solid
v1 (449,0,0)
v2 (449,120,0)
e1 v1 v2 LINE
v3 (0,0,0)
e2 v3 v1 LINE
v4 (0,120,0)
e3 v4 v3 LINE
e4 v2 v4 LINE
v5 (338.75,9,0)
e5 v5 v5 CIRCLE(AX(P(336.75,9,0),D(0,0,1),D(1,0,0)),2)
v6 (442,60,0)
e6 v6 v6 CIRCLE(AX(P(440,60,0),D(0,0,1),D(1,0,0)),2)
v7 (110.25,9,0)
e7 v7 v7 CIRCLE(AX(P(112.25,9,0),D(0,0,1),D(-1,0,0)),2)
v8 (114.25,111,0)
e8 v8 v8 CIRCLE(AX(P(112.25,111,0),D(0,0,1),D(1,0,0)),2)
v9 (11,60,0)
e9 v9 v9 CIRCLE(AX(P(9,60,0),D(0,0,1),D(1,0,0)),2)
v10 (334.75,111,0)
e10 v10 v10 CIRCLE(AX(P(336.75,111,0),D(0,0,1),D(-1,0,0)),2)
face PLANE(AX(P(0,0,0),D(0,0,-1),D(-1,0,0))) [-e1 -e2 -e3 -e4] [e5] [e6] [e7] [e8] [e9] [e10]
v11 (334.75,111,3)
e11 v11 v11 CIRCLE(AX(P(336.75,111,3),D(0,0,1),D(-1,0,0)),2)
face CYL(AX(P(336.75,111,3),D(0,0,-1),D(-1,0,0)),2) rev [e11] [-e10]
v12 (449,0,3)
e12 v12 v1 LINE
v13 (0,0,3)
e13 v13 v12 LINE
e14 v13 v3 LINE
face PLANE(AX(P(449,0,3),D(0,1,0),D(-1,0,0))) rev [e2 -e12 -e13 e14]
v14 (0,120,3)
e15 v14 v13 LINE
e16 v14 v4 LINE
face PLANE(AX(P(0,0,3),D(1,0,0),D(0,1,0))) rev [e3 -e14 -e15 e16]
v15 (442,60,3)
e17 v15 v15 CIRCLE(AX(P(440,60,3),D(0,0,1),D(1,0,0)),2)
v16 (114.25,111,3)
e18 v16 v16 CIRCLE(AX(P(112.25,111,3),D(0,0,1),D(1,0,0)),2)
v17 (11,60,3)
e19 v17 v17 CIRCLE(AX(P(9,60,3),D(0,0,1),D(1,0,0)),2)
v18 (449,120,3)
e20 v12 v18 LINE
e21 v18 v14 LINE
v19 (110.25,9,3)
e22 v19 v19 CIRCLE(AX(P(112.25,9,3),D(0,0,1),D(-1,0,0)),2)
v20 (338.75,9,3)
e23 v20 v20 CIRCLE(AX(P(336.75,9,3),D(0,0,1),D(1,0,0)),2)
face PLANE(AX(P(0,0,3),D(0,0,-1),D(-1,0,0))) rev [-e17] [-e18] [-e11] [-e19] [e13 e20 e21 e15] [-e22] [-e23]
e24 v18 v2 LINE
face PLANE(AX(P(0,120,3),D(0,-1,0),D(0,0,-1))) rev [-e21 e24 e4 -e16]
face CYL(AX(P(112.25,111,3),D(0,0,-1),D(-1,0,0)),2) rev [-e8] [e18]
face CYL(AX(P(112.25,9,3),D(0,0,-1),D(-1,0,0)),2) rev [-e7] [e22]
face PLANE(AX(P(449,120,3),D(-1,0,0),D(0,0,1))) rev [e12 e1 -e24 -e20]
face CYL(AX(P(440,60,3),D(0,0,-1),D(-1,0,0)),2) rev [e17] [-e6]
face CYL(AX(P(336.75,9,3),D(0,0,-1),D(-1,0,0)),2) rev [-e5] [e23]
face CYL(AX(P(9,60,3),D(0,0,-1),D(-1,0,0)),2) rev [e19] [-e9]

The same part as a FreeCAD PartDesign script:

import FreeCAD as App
import Part
import Sketcher

V = App.Vector


def add_polygon(sketch, points):
    """Adds a closed chain of lines whose ends are joined by coincident constraints."""
    first, n = sketch.GeometryCount, len(points)
    for a, b in zip(points, points[1:] + points[:1]):
        sketch.addGeometry(Part.LineSegment(App.Vector(*a, 0), App.Vector(*b, 0)), False)
    for i in range(n):
        sketch.addConstraint(Sketcher.Constraint("Coincident", first + i, 2, first + (i + 1) % n, 1))

doc = App.newDocument("Part")
body = doc.addObject("PartDesign::Body", "Body")

# Sketch on XY plane
sketch1 = body.newObject("Sketcher::SketchObject", "Sketch")
sketch1.AttachmentSupport = (doc.getObject("XY_Plane"), [""])
sketch1.MapMode = "FlatFace"
add_polygon(sketch1, [(0, 120), (0, 0), (449, 0), (449, 120)])  # lines 0-3
sketch1.addGeometry(Part.Circle(V(112.2, 9, 0), V(0, 0, 1), 2), False)  # 4
sketch1.addGeometry(Part.Circle(V(336.8, 9, 0), V(0, 0, 1), 2), False)  # 5
sketch1.addGeometry(Part.Circle(V(9, 60, 0), V(0, 0, 1), 2), False)  # 6
sketch1.addGeometry(Part.Circle(V(112.2, 111, 0), V(0, 0, 1), 2), False)  # 7
sketch1.addGeometry(Part.Circle(V(440, 60, 0), V(0, 0, 1), 2), False)  # 8
sketch1.addGeometry(Part.Circle(V(336.8, 111, 0), V(0, 0, 1), 2), False)  # 9
sketch1.addConstraint(Sketcher.Constraint("Vertical", 0))
sketch1.addConstraint(Sketcher.Constraint("Horizontal", 1))
sketch1.addConstraint(Sketcher.Constraint("Vertical", 2))
sketch1.addConstraint(Sketcher.Constraint("Horizontal", 3))
sketch1.addConstraint(Sketcher.Constraint("Coincident", 0, 2, -1, 1))
sketch1.addConstraint(Sketcher.Constraint("Equal", 4, 5))
sketch1.addConstraint(Sketcher.Constraint("Equal", 5, 6))
sketch1.addConstraint(Sketcher.Constraint("Equal", 6, 7))
sketch1.addConstraint(Sketcher.Constraint("Equal", 7, 8))
sketch1.addConstraint(Sketcher.Constraint("Equal", 8, 9))
sketch1.addConstraint(Sketcher.Constraint("Horizontal", 4, 3, 5, 3))
sketch1.addConstraint(Sketcher.Constraint("Horizontal", 6, 3, 8, 3))
sketch1.addConstraint(Sketcher.Constraint("Horizontal", 7, 3, 9, 3))
sketch1.addConstraint(Sketcher.Constraint("Vertical", 4, 3, 7, 3))
sketch1.addConstraint(Sketcher.Constraint("Vertical", 5, 3, 9, 3))
sketch1.addConstraint(Sketcher.Constraint("Diameter", 4, 4.0))
sketch1.addConstraint(Sketcher.Constraint("DistanceX", 1, 1, 1, 2, 449.0))
sketch1.addConstraint(Sketcher.Constraint("DistanceY", 0, 2, 0, 1, 120.0))
sketch1.addConstraint(Sketcher.Constraint("DistanceY", -1, 1, 4, 3, 9.0))
sketch1.addConstraint(Sketcher.Constraint("DistanceX", -1, 1, 6, 3, 9.0))
sketch1.addConstraint(Sketcher.Constraint("DistanceY", -1, 1, 6, 3, 60.0))
sketch1.addConstraint(Sketcher.Constraint("DistanceY", -1, 1, 7, 3, 111.0))
sketch1.addConstraint(Sketcher.Constraint("DistanceX", -1, 1, 8, 3, 440.0))
sketch1.addConstraint(Sketcher.Constraint("DistanceX", 4, 3, 5, 3, 224.5))
sketch1.addConstraint(Sketcher.Constraint("DistanceX", -1, 1, 4, 3, 112.25))
pad1 = body.newObject("PartDesign::Pad", "Pad")
pad1.Profile = sketch1
pad1.Length = 3

doc.recompute()
